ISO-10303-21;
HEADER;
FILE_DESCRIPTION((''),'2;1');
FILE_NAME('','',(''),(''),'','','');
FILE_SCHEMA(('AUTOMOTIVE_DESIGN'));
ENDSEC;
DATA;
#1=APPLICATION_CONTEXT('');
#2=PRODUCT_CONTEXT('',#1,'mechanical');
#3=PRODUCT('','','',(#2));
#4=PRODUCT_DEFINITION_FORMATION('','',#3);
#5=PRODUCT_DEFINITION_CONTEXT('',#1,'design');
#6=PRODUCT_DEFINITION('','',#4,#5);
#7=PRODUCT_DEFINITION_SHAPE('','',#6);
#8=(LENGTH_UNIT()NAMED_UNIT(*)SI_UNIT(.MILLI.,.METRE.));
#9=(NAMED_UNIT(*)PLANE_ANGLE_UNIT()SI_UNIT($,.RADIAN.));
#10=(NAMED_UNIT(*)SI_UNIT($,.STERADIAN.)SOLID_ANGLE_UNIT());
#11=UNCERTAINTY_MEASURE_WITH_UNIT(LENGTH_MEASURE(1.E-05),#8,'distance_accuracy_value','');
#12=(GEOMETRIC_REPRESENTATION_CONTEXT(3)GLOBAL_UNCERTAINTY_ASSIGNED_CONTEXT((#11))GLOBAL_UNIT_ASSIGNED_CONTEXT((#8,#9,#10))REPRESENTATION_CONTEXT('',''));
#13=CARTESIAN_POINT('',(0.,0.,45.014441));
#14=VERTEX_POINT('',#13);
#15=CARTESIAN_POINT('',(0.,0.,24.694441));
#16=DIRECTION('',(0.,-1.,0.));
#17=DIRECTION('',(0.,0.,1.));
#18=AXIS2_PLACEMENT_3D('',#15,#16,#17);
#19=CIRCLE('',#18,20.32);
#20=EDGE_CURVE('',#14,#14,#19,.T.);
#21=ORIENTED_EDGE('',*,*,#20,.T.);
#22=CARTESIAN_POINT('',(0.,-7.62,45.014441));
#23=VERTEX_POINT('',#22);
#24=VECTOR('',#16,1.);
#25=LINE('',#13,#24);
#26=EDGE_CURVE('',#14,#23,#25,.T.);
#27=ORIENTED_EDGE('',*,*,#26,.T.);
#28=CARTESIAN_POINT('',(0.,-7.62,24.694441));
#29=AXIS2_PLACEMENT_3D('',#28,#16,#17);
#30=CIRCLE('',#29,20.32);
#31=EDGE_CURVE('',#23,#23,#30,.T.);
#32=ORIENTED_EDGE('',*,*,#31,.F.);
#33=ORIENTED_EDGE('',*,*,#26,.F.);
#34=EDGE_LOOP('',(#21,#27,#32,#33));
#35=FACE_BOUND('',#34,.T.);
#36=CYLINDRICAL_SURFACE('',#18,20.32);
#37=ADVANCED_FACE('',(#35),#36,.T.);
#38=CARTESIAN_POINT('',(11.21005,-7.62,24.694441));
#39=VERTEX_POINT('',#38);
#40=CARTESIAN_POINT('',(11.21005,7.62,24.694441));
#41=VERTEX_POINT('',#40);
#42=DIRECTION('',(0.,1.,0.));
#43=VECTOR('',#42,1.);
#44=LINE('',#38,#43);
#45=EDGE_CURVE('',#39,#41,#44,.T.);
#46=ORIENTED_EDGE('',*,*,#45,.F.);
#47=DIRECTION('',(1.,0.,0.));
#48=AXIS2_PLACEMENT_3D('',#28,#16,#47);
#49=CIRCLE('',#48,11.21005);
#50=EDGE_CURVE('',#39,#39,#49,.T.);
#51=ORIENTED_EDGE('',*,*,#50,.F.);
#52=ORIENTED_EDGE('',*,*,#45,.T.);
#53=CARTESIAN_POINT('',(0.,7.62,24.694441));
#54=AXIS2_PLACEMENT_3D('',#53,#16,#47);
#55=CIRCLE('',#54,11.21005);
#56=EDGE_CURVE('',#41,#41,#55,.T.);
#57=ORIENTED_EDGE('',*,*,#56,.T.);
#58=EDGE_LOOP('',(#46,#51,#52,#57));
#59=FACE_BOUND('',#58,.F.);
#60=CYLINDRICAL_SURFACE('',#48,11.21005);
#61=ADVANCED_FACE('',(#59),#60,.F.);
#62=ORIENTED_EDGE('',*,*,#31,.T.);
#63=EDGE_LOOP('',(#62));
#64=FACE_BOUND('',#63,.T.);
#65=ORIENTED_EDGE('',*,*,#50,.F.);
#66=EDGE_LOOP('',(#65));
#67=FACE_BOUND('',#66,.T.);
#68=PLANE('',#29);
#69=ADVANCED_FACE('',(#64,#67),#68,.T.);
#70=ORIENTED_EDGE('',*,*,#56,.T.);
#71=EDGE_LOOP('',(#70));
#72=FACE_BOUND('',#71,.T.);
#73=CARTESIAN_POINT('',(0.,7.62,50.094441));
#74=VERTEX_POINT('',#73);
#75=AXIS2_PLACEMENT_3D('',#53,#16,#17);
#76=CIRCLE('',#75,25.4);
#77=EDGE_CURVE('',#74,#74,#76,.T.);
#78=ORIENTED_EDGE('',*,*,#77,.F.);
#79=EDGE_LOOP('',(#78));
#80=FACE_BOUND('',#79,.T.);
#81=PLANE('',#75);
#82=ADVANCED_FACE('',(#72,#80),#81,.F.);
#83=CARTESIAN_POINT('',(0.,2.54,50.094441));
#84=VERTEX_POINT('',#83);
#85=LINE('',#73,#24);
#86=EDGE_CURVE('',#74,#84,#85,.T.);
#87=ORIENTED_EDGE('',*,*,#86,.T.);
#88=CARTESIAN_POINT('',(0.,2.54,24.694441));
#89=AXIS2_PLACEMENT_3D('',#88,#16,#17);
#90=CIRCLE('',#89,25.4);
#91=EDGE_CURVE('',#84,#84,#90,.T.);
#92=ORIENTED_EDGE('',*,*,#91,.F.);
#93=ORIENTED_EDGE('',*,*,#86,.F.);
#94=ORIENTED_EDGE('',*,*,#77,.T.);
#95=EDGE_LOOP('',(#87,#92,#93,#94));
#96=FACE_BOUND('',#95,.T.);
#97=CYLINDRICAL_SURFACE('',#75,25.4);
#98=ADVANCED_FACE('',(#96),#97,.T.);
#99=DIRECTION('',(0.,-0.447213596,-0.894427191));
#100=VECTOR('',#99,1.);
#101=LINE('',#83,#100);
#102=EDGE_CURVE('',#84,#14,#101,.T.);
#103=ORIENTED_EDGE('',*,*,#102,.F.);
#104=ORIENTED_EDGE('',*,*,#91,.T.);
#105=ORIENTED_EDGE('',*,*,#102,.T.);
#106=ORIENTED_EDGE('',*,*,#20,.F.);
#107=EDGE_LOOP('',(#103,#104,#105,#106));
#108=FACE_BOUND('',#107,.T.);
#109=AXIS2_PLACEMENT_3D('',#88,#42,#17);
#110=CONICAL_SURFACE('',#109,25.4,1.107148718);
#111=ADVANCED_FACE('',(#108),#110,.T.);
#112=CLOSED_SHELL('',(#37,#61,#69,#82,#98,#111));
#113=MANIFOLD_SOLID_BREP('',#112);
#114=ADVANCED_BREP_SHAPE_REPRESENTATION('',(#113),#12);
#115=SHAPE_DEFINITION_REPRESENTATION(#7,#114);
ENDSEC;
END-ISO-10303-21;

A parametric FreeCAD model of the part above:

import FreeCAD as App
import Part
import Sketcher
from FreeCAD import Vector
Q = App.Units.Quantity


def add_polygon(sketch, points):
    """Adds a closed chain of lines whose ends are joined by coincident constraints."""
    first, n = sketch.GeometryCount, len(points)
    for a, b in zip(points, points[1:] + points[:1]):
        sketch.addGeometry(Part.LineSegment(App.Vector(*a, 0), App.Vector(*b, 0)), False)
    for i in range(n):
        sketch.addConstraint(Sketcher.Constraint("Coincident", first + i, 2, first + (i + 1) % n, 1))

doc = App.newDocument("Part")
body = doc.addObject("PartDesign::Body", "Body")

# Sketch on YZ plane
sketch1 = doc.addObject("Sketcher::SketchObject", "Sketch")
body.addObject(sketch1)
sketch1.AttachmentSupport = (doc.YZ_Plane, [""])
sketch1.MapMode = "FlatFace"
add_polygon(sketch1, [(0, 45), (-8, 45), (-8, 25), (8, 25), (8, 50), (3, 50)])  # lines 0-5
sketch1.addGeometry(Part.LineSegment(Vector(8, 25, 0), Vector(-8, 25, 0)), True)  # axis
sketch1.addConstraint(Sketcher.Constraint("Horizontal", 0))
sketch1.addConstraint(Sketcher.Constraint("Vertical", 1))
sketch1.addConstraint(Sketcher.Constraint("Horizontal", 2))
sketch1.addConstraint(Sketcher.Constraint("Vertical", 3))
sketch1.addConstraint(Sketcher.Constraint("Horizontal", 4))
sketch1.addConstraint(Sketcher.Constraint("Horizontal", 6))
sketch1.addConstraint(Sketcher.Constraint("Coincident", 6, 1, 2, 2))
sketch1.addConstraint(Sketcher.Constraint("PointOnObject", 5, 2, -2))
sketch1.addConstraint(Sketcher.Constraint("Vertical", 0, 2, 6, 2))
sketch1.addConstraint(Sketcher.Constraint("DistanceY", 3, 1, 3, 2, Q("1 in")))
sketch1.addConstraint(Sketcher.Constraint("DistanceX", 0, 2, 0, 1, Q("0.3 in")))
sketch1.addConstraint(Sketcher.Constraint("DistanceX", 2, 1, 2, 2, Q("0.6 in")))
sketch1.addConstraint(Sketcher.Constraint("DistanceX", 4, 2, 4, 1, Q("0.2 in")))
sketch1.addConstraint(Sketcher.Constraint("DistanceY", 1, 2, 1, 1, Q("0.8 in")))
sketch1.addConstraint(Sketcher.Constraint("DistanceY", -1, 1, 0, 2, 45.014441))
revolution = doc.addObject("PartDesign::Revolution", "Revolution")
body.addObject(revolution)
revolution.Profile = sketch1
revolution.ReferenceAxis = (sketch1, ["Axis0"])
revolution.Angle = 360

# Sketch on XZ plane
sketch2 = doc.addObject("Sketcher::SketchObject", "Sketch001")
body.addObject(sketch2)
sketch2.AttachmentSupport = (doc.XZ_Plane, [""])
sketch2.MapMode = "FlatFace"
sketch2.AttachmentOffset = App.Placement(Vector(0, 0, 0.3 * 25.4), App.Rotation())
sketch2.addGeometry(Part.Circle(Vector(0, 25, 0), Vector(0, 0, 1), 11), False)
sketch2.addConstraint(Sketcher.Constraint("PointOnObject", 0, 3, -2))
sketch2.addConstraint(Sketcher.Constraint("Diameter", 0, 22.4201))
sketch2.addConstraint(Sketcher.Constraint("DistanceY", -1, 1, 0, 3, 24.694441))
pocket1 = doc.addObject("PartDesign::Pocket", "Pocket")
body.addObject(pocket1)
pocket1.Profile = sketch2
pocket1.Type = "ThroughAll"

doc.recompute()
